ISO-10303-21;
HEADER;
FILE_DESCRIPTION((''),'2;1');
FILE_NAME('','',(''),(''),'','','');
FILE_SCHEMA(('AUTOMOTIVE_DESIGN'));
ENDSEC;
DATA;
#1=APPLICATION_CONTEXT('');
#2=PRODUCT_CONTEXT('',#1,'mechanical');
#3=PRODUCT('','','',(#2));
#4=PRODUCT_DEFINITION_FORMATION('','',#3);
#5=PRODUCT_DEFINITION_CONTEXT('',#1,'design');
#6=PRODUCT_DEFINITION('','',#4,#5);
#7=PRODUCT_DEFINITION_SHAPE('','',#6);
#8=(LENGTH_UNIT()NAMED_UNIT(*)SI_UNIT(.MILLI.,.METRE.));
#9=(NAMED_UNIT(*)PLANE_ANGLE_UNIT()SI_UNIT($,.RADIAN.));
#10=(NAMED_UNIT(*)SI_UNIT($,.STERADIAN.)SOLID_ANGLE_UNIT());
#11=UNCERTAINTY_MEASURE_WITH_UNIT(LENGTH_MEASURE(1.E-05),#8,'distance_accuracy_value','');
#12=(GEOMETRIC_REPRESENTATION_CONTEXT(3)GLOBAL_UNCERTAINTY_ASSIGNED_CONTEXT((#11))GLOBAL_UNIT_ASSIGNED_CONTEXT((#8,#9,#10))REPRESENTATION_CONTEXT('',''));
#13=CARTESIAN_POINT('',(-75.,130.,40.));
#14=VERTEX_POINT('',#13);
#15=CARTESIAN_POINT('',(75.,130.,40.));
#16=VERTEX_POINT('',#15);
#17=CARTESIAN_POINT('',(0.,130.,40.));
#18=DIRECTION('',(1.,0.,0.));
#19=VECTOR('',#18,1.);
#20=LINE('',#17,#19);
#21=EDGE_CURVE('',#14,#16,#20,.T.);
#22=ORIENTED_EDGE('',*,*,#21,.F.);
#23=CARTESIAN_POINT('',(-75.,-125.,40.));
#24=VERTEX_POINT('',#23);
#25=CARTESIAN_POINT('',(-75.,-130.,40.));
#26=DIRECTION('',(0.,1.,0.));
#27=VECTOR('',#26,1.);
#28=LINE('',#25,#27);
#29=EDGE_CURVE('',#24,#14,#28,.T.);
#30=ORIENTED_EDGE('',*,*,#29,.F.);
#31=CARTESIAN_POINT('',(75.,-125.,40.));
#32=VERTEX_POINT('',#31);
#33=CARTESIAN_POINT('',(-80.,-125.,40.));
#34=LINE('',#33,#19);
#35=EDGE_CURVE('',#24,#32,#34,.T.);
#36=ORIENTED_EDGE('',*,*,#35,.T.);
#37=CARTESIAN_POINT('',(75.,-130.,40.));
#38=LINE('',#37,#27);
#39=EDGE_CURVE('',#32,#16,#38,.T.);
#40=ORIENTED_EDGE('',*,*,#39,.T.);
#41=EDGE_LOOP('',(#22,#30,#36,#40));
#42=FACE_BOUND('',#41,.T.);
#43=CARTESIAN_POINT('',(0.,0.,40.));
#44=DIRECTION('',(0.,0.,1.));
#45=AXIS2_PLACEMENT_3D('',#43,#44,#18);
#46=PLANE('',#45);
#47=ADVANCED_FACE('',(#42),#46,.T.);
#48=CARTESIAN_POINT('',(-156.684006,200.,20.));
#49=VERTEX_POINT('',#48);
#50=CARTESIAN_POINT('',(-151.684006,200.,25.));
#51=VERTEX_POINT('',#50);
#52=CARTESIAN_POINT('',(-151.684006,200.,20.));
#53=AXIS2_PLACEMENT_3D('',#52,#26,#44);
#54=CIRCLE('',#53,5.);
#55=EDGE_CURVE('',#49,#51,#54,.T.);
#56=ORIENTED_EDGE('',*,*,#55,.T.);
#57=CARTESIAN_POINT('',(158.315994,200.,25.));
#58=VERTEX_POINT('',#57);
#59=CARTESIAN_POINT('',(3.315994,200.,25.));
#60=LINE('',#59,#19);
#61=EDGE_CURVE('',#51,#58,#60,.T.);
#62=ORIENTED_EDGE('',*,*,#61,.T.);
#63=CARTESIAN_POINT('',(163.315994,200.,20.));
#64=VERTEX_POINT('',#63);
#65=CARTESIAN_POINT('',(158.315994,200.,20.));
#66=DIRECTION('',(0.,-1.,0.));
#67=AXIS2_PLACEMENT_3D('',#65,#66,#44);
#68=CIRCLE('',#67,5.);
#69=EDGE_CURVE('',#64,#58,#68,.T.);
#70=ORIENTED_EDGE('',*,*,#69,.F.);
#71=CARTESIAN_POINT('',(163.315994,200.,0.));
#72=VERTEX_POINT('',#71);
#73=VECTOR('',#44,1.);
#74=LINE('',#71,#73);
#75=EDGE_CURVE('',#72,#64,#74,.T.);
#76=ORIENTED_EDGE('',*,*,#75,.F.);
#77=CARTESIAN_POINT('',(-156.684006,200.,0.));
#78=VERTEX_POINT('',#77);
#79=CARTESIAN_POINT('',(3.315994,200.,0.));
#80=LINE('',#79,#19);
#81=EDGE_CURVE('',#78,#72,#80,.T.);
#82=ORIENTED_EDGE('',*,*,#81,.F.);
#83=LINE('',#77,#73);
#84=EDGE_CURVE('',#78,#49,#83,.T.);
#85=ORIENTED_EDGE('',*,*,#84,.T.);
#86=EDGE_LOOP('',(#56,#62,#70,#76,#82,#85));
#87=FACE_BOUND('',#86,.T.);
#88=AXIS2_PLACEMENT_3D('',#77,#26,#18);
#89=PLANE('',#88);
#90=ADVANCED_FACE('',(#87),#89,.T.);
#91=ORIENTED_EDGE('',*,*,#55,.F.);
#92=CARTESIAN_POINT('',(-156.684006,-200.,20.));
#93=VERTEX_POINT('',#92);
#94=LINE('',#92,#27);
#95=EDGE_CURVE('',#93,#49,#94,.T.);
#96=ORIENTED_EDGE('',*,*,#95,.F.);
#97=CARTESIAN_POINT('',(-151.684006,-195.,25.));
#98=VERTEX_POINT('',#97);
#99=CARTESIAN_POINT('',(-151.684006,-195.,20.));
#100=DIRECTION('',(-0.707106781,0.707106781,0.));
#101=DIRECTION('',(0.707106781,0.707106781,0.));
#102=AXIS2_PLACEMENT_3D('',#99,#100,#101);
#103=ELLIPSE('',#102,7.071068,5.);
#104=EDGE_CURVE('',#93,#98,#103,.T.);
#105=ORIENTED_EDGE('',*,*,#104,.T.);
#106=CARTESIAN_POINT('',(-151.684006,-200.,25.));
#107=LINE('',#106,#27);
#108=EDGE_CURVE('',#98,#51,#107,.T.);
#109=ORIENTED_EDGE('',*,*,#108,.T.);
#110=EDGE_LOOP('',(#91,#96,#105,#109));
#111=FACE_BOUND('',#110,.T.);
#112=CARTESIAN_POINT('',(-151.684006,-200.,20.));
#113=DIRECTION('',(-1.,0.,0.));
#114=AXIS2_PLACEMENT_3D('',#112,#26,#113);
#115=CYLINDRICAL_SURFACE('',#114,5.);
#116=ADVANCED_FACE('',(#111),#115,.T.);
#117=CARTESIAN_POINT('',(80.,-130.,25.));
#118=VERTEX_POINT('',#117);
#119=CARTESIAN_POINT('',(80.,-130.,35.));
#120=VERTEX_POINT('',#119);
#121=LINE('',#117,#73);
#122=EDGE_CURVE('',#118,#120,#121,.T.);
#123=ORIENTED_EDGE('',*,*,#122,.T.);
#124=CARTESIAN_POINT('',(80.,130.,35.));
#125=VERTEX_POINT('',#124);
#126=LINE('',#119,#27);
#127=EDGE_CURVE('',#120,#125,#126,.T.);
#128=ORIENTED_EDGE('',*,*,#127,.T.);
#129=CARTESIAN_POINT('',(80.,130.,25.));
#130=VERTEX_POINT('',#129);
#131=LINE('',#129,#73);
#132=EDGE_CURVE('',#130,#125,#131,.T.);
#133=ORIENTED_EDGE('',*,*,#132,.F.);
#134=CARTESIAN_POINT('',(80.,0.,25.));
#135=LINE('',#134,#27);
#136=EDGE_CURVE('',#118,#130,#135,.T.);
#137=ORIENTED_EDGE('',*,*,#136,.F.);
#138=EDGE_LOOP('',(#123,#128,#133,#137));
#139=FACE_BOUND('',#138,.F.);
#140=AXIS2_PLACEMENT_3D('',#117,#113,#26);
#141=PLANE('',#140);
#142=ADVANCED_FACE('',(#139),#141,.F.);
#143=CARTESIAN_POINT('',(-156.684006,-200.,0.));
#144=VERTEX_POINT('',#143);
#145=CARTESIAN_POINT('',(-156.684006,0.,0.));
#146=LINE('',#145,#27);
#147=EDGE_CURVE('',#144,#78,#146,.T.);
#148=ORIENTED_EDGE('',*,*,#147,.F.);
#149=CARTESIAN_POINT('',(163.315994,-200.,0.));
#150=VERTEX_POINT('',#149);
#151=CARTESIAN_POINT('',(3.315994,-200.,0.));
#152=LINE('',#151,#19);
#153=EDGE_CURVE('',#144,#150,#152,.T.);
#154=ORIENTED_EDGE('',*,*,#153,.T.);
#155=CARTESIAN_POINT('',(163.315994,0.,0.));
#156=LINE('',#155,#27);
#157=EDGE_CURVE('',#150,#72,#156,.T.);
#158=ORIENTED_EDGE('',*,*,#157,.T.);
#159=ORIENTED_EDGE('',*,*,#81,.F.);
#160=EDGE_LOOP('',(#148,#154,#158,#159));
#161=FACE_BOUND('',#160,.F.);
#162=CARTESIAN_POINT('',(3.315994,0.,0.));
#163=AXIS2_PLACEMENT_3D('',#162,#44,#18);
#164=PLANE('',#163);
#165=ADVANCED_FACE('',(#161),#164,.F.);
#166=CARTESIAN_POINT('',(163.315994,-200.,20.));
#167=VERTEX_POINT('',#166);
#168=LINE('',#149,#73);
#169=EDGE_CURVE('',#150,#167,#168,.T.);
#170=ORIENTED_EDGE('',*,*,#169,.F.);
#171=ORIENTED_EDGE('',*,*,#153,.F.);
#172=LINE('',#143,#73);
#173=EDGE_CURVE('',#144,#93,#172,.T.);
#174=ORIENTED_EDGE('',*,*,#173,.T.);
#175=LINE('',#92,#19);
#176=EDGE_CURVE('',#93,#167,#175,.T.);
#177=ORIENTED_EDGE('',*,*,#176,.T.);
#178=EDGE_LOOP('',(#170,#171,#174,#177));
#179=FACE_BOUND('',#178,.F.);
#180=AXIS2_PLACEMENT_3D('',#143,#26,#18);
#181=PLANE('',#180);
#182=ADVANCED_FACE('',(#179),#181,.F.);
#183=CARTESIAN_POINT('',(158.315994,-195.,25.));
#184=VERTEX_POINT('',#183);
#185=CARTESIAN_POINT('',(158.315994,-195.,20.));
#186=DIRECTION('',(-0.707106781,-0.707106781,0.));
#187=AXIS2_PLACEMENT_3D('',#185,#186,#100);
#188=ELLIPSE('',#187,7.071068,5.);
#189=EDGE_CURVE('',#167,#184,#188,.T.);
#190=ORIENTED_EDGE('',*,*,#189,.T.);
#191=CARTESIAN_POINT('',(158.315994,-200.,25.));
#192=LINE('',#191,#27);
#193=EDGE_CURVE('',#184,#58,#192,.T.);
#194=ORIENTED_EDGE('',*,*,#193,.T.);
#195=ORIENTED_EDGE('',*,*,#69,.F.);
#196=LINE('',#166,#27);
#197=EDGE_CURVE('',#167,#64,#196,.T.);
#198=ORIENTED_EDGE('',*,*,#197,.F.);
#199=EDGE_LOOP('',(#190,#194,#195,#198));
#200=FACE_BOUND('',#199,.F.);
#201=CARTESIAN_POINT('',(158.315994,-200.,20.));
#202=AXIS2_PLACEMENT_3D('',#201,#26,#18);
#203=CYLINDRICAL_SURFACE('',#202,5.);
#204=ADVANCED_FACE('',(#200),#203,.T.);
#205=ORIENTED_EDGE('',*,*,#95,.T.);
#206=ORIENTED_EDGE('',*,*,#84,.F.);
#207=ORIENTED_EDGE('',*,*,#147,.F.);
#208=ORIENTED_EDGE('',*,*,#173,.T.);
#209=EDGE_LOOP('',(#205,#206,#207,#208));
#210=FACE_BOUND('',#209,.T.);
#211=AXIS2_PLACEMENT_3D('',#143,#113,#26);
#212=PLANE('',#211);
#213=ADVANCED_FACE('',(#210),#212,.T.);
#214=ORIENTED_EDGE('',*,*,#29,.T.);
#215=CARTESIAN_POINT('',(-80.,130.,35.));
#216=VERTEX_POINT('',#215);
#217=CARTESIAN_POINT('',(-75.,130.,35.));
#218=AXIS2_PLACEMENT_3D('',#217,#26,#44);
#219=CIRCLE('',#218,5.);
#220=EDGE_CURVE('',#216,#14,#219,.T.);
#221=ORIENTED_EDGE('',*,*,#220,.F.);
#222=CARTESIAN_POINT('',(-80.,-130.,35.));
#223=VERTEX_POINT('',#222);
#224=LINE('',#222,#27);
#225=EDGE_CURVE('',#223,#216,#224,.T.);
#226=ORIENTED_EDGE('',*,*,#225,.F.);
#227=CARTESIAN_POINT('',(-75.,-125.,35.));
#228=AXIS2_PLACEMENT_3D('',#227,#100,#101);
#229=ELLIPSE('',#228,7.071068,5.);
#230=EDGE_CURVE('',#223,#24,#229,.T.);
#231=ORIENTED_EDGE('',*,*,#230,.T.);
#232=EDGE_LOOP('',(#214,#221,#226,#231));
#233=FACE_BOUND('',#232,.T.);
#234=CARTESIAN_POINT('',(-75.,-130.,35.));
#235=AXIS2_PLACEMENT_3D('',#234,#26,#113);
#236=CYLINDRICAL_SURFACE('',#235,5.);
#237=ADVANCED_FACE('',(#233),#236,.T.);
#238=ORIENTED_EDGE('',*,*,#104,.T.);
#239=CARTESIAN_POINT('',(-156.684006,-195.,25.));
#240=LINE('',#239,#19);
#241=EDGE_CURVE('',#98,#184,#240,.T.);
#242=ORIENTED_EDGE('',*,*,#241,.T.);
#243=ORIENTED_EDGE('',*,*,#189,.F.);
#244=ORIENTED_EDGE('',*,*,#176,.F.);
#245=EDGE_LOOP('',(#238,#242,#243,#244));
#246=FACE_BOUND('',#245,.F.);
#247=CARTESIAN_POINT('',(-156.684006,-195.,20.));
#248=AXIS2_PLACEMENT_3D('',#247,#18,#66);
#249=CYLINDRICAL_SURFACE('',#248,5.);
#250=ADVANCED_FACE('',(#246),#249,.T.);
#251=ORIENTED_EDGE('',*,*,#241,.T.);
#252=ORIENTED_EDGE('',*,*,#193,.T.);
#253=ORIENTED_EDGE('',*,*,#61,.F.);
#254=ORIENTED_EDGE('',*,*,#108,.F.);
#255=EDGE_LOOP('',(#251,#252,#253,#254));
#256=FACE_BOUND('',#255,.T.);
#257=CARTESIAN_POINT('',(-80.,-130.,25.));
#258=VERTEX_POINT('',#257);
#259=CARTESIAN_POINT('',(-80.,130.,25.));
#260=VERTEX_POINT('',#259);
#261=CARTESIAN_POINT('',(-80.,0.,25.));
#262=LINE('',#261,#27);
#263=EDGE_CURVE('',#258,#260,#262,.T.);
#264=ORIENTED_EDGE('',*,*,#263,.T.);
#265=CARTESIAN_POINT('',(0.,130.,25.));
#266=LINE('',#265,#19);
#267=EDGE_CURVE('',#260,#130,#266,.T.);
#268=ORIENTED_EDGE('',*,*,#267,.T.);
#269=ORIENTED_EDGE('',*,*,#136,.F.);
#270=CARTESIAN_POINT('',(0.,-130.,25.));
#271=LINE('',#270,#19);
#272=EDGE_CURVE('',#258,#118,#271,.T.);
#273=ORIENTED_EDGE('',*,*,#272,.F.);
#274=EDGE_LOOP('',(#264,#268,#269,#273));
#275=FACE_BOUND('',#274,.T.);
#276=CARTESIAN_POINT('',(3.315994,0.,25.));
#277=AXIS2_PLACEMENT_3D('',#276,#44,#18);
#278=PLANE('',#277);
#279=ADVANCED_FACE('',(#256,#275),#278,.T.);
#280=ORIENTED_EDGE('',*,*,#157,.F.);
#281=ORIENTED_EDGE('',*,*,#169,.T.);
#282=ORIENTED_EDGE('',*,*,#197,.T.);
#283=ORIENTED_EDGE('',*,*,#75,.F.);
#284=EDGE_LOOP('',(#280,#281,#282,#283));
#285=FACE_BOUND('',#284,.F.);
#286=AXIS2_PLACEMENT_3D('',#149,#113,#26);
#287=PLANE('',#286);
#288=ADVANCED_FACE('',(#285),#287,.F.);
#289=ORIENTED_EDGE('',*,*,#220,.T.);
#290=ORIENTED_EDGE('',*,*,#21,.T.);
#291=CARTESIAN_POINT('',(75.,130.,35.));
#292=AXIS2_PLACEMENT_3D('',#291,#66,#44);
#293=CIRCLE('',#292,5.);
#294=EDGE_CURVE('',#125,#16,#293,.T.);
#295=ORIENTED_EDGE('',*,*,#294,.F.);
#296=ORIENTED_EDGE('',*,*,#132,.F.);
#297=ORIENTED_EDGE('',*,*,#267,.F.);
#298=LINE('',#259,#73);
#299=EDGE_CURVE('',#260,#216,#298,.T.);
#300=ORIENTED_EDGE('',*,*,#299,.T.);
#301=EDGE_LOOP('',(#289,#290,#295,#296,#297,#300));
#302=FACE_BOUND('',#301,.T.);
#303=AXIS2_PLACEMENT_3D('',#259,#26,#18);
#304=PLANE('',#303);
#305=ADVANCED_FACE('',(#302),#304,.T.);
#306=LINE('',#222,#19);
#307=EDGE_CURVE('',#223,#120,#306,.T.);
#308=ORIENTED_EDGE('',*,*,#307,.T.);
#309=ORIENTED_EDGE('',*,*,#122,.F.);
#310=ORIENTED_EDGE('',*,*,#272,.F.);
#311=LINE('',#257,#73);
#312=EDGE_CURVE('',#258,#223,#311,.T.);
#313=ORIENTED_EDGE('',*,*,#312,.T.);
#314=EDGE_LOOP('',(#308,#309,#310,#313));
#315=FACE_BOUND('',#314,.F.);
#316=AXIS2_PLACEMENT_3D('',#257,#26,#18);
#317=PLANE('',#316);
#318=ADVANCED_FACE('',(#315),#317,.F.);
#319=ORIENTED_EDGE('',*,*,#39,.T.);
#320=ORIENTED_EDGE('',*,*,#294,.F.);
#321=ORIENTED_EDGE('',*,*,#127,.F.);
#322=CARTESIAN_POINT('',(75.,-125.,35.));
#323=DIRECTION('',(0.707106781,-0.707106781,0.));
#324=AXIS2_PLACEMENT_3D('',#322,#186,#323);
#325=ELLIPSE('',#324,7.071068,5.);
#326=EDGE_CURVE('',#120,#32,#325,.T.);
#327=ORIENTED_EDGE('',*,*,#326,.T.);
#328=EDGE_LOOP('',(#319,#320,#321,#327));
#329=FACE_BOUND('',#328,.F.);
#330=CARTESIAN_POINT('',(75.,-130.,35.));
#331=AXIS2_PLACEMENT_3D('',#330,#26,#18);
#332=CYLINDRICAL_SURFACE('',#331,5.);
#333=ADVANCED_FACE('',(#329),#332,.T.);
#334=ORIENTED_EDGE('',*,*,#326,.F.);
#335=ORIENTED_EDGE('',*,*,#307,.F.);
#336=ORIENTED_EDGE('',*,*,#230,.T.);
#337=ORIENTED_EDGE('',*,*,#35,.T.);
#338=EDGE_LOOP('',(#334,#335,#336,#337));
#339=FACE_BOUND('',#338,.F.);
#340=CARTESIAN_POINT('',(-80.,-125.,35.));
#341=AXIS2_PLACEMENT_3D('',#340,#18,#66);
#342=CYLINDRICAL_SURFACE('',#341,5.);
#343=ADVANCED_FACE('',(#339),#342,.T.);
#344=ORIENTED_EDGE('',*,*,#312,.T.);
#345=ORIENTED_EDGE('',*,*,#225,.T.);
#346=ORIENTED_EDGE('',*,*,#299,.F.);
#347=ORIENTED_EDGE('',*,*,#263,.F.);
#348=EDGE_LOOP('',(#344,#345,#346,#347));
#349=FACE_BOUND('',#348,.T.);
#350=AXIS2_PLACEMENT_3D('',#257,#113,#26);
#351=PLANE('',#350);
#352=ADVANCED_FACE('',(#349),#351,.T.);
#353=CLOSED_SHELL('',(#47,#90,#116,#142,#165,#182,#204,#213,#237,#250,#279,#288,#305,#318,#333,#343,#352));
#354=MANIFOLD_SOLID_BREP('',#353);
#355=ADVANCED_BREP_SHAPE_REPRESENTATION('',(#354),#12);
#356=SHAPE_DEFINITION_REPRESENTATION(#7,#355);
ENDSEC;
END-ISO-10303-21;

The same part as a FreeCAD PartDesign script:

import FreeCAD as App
import Part
import Sketcher

V = App.Vector
Q = App.Units.Quantity


def edges_at(feature, points):
    """Names of the edges that pass closest to the given points."""
    edges = feature.Shape.Edges
    near = lambda p: min(range(len(edges)), key=lambda i: edges[i].distToShape(Part.Vertex(*p))[0])
    return sorted({f"Edge{near(p) + 1}" for p in points})


def add_polygon(sketch, points):
    """Adds a closed chain of lines whose ends are joined by coincident constraints."""
    first, n = sketch.GeometryCount, len(points)
    for a, b in zip(points, points[1:] + points[:1]):
        sketch.addGeometry(Part.LineSegment(App.Vector(*a, 0), App.Vector(*b, 0)), False)
    for i in range(n):
        sketch.addConstraint(Sketcher.Constraint("Coincident", first + i, 2, first + (i + 1) % n, 1))

doc = App.newDocument("Part")
body = doc.addObject("PartDesign::Body", "Body")

# Sketch on XY plane
sketch1 = body.newObject("Sketcher::SketchObject", "Sketch")
sketch1.AttachmentSupport = (doc.getObject("XY_Plane"), [""])
sketch1.MapMode = "FlatFace"
add_polygon(sketch1, [(-156.684006, 200), (-156.684006, -200), (163.315994, -200), (163.315994, 200)])  # lines 0-3
sketch1.addConstraint([
    Sketcher.Constraint("Vertical", 0),
    Sketcher.Constraint("Horizontal", 1),
    Sketcher.Constraint("Vertical", 2),
    Sketcher.Constraint("Horizontal", 3),
    Sketcher.Constraint("DistanceX", 1, 1, 1, 2, Q("320 mm")),
    Sketcher.Constraint("DistanceY", 0, 2, 0, 1, Q("400 mm")),
    Sketcher.Constraint("DistanceY", 0, 2, -1, 1, Q("200 mm")),
    Sketcher.Constraint("DistanceX", 0, 2, -1, 1, Q("156.684006 mm")),
])
pad1 = body.newObject("PartDesign::Pad", "Pad")
pad1.Profile = sketch1
pad1.Length = 25
doc.recompute()

fillet = body.newObject("PartDesign::Fillet", "Fillet")
fillet.Base = (pad1, edges_at(pad1, [(-156.684, 0, 25), (163.316, 0, 25), (3.316, -200, 25)]))
fillet.Radius = 5

# Sketch on XY plane
sketch2 = body.newObject("Sketcher::SketchObject", "Sketch001")
sketch2.AttachmentSupport = (doc.getObject("XY_Plane"), [""])
sketch2.MapMode = "FlatFace"
sketch2.AttachmentOffset = App.Placement(V(0, 0, 25), App.Rotation())
add_polygon(sketch2, [(-80, 130), (-80, -130), (80, -130), (80, 130)])  # lines 0-3
sketch2.addConstraint([
    Sketcher.Constraint("Vertical", 0),
    Sketcher.Constraint("Horizontal", 1),
    Sketcher.Constraint("Vertical", 2),
    Sketcher.Constraint("Horizontal", 3),
    Sketcher.Constraint("Symmetric", 0, 2, 2, 2, -1, 1),
    Sketcher.Constraint("DistanceX", 1, 1, 1, 2, Q("160 mm")),
    Sketcher.Constraint("DistanceY", 0, 2, 0, 1, Q("260 mm")),
])
pad2 = body.newObject("PartDesign::Pad", "Pad001")
pad2.Profile = sketch2
pad2.Length = 15
doc.recompute()

fillet2 = body.newObject("PartDesign::Fillet", "Fillet001")
fillet2.Base = (pad2, edges_at(pad2, [(-80, 0, 40), (0, -130, 40), (80, 0, 40)]))
fillet2.Radius = 5

doc.recompute()
